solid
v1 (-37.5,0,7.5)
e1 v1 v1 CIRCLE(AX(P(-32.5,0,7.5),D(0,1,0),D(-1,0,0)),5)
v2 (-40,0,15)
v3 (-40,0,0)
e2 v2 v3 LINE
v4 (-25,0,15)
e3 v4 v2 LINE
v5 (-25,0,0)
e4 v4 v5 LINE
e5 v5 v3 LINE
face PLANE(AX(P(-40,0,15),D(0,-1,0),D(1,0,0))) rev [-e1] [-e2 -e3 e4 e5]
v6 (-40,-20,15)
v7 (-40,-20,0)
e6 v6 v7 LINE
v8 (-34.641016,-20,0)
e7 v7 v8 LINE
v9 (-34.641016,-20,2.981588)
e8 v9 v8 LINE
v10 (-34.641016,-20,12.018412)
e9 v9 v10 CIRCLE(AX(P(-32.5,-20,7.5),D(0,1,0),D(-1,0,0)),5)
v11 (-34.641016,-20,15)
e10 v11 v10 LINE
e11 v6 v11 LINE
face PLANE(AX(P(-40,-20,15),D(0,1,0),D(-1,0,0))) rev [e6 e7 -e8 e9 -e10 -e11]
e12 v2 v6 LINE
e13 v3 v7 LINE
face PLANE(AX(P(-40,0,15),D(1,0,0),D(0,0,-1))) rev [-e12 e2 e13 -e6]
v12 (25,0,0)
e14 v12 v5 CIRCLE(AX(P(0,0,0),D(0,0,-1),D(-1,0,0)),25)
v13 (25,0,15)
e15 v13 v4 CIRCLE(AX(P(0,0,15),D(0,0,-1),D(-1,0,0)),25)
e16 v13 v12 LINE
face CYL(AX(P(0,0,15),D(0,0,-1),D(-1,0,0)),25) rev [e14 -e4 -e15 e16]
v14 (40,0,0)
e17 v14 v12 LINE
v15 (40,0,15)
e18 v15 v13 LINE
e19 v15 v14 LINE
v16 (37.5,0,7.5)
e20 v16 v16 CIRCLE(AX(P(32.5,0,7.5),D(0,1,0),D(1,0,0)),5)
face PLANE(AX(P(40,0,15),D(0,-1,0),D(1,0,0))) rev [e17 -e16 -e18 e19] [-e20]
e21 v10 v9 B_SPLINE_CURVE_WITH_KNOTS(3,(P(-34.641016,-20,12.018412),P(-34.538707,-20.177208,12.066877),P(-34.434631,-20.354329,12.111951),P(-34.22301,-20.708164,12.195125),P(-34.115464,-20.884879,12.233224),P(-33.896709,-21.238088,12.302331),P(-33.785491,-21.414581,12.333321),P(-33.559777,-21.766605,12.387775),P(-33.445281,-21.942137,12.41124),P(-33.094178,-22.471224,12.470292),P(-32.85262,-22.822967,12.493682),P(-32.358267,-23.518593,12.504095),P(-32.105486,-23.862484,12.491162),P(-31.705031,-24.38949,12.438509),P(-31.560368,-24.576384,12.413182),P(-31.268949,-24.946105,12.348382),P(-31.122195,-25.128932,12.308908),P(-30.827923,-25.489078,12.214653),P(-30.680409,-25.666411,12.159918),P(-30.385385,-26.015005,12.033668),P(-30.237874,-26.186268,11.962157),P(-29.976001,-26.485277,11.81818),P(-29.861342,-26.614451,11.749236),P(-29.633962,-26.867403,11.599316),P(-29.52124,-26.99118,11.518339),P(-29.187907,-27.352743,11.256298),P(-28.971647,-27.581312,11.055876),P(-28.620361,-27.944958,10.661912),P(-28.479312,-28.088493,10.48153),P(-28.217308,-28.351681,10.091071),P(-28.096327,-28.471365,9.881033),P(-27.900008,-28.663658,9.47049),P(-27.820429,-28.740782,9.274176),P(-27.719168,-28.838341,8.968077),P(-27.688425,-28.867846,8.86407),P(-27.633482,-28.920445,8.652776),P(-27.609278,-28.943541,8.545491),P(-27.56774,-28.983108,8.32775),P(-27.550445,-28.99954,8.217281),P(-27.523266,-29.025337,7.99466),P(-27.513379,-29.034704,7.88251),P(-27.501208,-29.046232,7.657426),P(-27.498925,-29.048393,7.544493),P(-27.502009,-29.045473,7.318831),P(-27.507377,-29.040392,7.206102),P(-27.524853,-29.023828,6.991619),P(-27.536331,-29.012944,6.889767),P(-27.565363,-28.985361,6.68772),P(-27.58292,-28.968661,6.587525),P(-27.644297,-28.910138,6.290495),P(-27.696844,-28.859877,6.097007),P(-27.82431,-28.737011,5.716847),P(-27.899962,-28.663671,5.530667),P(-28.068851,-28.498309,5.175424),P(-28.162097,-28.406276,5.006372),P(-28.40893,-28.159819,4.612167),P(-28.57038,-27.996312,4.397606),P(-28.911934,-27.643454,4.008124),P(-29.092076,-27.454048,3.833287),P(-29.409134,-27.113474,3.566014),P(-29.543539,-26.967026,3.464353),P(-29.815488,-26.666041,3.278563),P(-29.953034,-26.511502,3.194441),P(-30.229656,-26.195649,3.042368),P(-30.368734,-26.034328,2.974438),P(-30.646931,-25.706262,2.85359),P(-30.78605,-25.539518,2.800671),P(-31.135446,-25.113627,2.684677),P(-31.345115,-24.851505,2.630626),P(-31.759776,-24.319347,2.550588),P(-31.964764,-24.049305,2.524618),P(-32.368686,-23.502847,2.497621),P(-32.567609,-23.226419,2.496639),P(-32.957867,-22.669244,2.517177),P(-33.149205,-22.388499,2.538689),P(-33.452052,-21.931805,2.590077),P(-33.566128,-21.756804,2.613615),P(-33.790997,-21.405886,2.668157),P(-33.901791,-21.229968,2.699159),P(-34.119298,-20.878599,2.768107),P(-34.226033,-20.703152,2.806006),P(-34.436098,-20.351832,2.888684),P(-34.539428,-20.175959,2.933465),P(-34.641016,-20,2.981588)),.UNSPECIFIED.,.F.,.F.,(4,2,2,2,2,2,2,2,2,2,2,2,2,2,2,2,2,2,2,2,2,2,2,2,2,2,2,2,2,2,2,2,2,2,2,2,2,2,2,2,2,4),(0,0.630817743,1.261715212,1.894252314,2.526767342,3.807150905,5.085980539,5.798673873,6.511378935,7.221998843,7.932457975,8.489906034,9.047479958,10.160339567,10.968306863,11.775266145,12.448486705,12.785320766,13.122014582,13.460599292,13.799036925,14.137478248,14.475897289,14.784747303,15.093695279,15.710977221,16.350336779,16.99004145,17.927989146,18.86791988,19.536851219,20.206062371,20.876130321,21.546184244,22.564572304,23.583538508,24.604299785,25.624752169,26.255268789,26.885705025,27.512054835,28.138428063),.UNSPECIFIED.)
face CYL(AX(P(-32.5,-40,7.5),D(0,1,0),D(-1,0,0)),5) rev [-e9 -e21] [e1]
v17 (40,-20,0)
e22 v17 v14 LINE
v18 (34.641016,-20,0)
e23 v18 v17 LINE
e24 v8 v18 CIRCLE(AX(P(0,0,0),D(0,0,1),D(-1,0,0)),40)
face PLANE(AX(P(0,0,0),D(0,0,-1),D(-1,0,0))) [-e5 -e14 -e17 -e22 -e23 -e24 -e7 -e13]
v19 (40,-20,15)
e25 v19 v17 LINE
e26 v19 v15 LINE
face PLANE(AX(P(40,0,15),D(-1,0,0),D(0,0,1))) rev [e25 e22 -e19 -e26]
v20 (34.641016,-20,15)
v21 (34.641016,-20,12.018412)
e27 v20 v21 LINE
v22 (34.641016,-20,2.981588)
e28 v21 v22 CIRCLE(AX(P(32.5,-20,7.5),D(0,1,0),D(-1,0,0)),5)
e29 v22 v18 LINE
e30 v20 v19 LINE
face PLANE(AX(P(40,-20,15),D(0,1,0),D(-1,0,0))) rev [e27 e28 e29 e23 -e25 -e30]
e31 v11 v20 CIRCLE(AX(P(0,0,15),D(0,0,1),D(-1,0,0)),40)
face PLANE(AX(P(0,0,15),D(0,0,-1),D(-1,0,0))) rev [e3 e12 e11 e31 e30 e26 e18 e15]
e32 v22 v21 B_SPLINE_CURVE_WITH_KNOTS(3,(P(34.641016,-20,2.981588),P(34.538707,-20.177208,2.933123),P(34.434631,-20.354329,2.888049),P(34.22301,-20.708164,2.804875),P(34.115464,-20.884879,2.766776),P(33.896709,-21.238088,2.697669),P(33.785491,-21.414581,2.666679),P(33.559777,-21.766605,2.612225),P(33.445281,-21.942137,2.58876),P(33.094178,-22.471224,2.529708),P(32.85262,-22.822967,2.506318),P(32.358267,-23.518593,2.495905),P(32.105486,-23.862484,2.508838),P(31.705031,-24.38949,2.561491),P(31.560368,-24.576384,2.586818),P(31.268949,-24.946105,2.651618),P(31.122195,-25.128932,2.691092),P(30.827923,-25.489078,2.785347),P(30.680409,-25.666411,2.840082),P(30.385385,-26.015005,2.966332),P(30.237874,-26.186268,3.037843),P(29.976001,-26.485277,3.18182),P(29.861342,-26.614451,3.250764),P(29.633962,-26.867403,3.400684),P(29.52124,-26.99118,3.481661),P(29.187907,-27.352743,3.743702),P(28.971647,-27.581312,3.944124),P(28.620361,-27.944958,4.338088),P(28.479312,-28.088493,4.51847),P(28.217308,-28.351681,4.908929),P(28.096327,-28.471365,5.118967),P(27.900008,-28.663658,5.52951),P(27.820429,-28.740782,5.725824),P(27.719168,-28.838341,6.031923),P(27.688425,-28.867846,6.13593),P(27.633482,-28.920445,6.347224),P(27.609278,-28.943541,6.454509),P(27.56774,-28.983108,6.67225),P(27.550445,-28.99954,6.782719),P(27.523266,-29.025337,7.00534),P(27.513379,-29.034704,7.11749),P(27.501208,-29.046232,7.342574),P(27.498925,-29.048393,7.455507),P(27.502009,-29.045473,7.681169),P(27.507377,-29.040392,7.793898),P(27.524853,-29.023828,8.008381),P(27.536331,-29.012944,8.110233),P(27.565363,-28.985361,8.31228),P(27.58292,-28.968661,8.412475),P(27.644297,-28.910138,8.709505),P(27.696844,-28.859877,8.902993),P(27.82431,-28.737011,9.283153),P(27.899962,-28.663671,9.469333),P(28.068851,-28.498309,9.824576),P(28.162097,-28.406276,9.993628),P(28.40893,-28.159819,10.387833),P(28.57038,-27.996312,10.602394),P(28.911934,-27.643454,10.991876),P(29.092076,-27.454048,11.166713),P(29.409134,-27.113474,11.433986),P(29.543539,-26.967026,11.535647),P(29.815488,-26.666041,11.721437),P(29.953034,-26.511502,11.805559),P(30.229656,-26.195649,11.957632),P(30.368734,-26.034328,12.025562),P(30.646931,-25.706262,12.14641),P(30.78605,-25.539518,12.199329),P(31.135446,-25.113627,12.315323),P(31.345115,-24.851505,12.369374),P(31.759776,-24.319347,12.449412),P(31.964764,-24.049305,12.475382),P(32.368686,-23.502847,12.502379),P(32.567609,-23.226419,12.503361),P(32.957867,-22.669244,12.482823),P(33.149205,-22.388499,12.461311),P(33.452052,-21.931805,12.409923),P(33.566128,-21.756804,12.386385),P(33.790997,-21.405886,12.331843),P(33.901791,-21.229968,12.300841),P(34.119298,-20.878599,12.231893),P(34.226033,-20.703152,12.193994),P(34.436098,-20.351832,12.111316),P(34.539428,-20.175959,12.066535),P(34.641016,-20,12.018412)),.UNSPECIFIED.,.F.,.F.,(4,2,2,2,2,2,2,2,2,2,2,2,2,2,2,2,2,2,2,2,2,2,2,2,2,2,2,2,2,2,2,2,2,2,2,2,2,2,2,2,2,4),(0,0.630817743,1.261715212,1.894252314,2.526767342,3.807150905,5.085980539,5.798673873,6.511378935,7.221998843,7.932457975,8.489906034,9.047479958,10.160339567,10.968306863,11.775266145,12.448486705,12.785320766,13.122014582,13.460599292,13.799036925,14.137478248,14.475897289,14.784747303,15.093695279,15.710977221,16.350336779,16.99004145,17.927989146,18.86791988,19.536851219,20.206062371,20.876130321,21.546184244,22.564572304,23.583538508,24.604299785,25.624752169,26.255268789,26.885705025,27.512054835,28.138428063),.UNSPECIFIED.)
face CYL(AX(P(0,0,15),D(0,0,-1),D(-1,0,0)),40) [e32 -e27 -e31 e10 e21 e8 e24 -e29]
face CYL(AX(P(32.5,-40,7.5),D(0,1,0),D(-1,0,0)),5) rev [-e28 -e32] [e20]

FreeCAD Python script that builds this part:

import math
import FreeCAD as App
import Part
import Sketcher

V = App.Vector

doc = App.newDocument("Part")
body = doc.addObject("PartDesign::Body", "Body")

# Sketch on XY plane
sketch1 = doc.addObject("Sketcher::SketchObject", "Sketch")
body.addObject(sketch1)
sketch1.AttachmentSupport = (doc.XY_Plane, [""])
sketch1.MapMode = "FlatFace"
sketch1.addGeometry(Part.LineSegment(V(-25, 0, 0), V(-40, 0, 0)), False)
sketch1.addGeometry(Part.LineSegment(V(-40, 0, 0), V(-40, -20, 0)), False)
sketch1.addGeometry(Part.LineSegment(V(-40, -20, 0), V(-35, -20, 0)), False)
sketch1.addGeometry(Part.ArcOfCircle(Part.Circle(V(0, 0, 0), V(0, 0, 1), 40), math.radians(-150), math.radians(-30)), False)
sketch1.addGeometry(Part.LineSegment(V(35, -20, 0), V(40, -20, 0)), False)
sketch1.addGeometry(Part.LineSegment(V(40, -20, 0), V(40, 0, 0)), False)
sketch1.addGeometry(Part.LineSegment(V(40, 0, 0), V(25, 0, 0)), False)
sketch1.addGeometry(Part.ArcOfCircle(Part.Circle(V(0, 0, 0), V(0, 0, 1), 25), math.radians(180), math.radians(360)), False)
sketch1.addConstraint(Sketcher.Constraint("Coincident", 0, 2, 1, 1))
sketch1.addConstraint(Sketcher.Constraint("Coincident", 1, 2, 2, 1))
sketch1.addConstraint(Sketcher.Constraint("Coincident", 2, 2, 3, 1))
sketch1.addConstraint(Sketcher.Constraint("Coincident", 3, 2, 4, 1))
sketch1.addConstraint(Sketcher.Constraint("Coincident", 4, 2, 5, 1))
sketch1.addConstraint(Sketcher.Constraint("Coincident", 5, 2, 6, 1))
sketch1.addConstraint(Sketcher.Constraint("Coincident", 6, 2, 7, 2))
sketch1.addConstraint(Sketcher.Constraint("Coincident", 7, 1, 0, 1))
sketch1.addConstraint(Sketcher.Constraint("Horizontal", 0))
sketch1.addConstraint(Sketcher.Constraint("Vertical", 1))
sketch1.addConstraint(Sketcher.Constraint("Horizontal", 2))
sketch1.addConstraint(Sketcher.Constraint("Horizontal", 4))
sketch1.addConstraint(Sketcher.Constraint("Vertical", 5))
sketch1.addConstraint(Sketcher.Constraint("Horizontal", 6))
sketch1.addConstraint(Sketcher.Constraint("Coincident", 3, 3, -1, 1))
sketch1.addConstraint(Sketcher.Constraint("Coincident", 7, 3, -1, 1))
sketch1.addConstraint(Sketcher.Constraint("Symmetric", 0, 2, 5, 2, -1, 1))
sketch1.addConstraint(Sketcher.Constraint("PointOnObject", 0, 2, -1))
sketch1.addConstraint(Sketcher.Constraint("Horizontal", 2, 2, 3, 2))
sketch1.addConstraint(Sketcher.Constraint("Radius", 3, 40.0))
sketch1.addConstraint(Sketcher.Constraint("Radius", 7, 25.0))
sketch1.addConstraint(Sketcher.Constraint("DistanceX", 0, 2, 0, 1, 15.0))
sketch1.addConstraint(Sketcher.Constraint("DistanceY", 1, 2, 1, 1, 20.0))
pad1 = doc.addObject("PartDesign::Pad", "Pad")
body.addObject(pad1)
pad1.Profile = sketch1
pad1.Length = 15

# Sketch on XZ plane
sketch2 = doc.addObject("Sketcher::SketchObject", "Sketch001")
body.addObject(sketch2)
sketch2.AttachmentSupport = (doc.XZ_Plane, [""])
sketch2.MapMode = "FlatFace"
sketch2.addGeometry(Part.Circle(V(-32, 8, 0), V(0, 0, 1), 5), False)
sketch2.addGeometry(Part.Circle(V(32, 8, 0), V(0, 0, 1), 5), False)
sketch2.addConstraint(Sketcher.Constraint("Equal", 0, 1))
sketch2.addConstraint(Sketcher.Constraint("Symmetric", 0, 3, 1, 3, -2))
sketch2.addConstraint(Sketcher.Constraint("Diameter", 0, 10.0))
sketch2.addConstraint(Sketcher.Constraint("DistanceX", 0, 3, 1, 3, 65.0))
sketch2.addConstraint(Sketcher.Constraint("DistanceY", -1, 1, 0, 3, 7.5))
pocket1 = doc.addObject("PartDesign::Pocket", "Pocket")
body.addObject(pocket1)
pocket1.Profile = sketch2
pocket1.Type = "ThroughAll"
pocket1.Reversed = True

doc.recompute()
